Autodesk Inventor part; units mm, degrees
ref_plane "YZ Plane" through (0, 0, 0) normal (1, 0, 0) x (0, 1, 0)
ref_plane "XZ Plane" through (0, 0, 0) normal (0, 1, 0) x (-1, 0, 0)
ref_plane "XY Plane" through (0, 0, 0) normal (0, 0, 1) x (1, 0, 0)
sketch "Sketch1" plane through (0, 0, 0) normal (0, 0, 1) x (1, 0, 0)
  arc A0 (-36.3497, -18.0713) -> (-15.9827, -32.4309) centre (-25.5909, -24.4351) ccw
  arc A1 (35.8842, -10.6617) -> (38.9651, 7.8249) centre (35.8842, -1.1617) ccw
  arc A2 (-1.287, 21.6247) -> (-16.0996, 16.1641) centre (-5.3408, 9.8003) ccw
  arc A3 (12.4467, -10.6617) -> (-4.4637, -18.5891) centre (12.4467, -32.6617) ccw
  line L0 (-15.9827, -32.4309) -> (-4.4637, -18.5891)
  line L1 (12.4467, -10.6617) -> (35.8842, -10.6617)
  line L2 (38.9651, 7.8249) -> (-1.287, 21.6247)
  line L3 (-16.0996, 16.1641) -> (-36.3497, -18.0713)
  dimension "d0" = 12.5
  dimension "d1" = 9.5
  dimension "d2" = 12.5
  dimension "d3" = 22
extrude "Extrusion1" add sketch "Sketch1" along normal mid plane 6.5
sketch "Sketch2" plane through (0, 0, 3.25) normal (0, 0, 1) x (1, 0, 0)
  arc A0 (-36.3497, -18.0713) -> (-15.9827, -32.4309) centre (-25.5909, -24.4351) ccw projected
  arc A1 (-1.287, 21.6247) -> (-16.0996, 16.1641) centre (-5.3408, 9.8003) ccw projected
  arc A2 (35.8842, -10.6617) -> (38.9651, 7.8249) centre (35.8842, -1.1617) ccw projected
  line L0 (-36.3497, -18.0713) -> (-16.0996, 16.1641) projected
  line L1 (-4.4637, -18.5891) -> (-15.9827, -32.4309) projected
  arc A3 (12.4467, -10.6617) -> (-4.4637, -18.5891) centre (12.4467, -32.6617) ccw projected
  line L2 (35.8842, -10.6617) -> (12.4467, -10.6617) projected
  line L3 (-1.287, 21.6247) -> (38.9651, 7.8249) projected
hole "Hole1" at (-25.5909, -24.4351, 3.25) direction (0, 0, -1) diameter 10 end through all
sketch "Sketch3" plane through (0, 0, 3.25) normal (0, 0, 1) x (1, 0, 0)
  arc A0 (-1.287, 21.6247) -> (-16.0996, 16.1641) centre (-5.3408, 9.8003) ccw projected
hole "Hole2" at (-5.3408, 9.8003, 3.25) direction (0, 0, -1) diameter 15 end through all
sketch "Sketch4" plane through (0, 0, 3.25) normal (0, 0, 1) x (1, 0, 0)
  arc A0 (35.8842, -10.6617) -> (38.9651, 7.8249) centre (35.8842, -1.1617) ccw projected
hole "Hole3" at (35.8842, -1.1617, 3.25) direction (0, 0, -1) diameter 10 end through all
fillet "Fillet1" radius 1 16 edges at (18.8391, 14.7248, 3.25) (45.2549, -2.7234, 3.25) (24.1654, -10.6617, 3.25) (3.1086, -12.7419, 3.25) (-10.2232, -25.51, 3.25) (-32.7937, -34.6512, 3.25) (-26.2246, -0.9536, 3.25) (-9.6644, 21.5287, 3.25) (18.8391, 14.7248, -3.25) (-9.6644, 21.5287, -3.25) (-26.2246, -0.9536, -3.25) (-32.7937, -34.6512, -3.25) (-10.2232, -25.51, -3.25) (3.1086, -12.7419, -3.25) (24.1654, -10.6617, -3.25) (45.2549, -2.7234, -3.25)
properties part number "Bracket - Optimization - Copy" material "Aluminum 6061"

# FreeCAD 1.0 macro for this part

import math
import FreeCAD as App
import Part
import Sketcher
from FreeCAD import Vector
Q = App.Units.Quantity


def edges_at(feature, points):
    """Names of the edges that pass closest to the given points."""
    edges = feature.Shape.Edges
    near = lambda p: min(range(len(edges)), key=lambda i: edges[i].distToShape(Part.Vertex(*p))[0])
    return sorted({f"Edge{near(p) + 1}" for p in points})

doc = App.newDocument("Part")
body = doc.addObject("PartDesign::Body", "Body")

# Sketch on XY plane
sketch1 = body.newObject("Sketcher::SketchObject", "Sketch")
sketch1.AttachmentSupport = (doc.getObject("XY_Plane"), [""])
sketch1.MapMode = "FlatFace"
sketch1.addGeometry([
    Part.LineSegment(Vector(-16.0996, 16.1641, 0), Vector(-36.3497, -18.0713, 0)),  # 0
    Part.ArcOfCircle(Part.Circle(Vector(-25.5909, -24.4351, 0), Vector(0, 0, 1), 12.499989), math.radians(149.395804), math.radians(320.23328)),  # 1
    Part.LineSegment(Vector(-15.9827, -32.4309, 0), Vector(-4.4637, -18.5891, 0)),  # 2
    Part.ArcOfCircle(Part.Circle(Vector(12.4467, -32.6617, 0), Vector(0, 0, 1), 22), math.radians(90), math.radians(140.233243)),  # 3
    Part.LineSegment(Vector(12.4467, -10.6617, 0), Vector(35.8842, -10.6617, 0)),  # 4
    Part.ArcOfCircle(Part.Circle(Vector(35.8842, -1.1617, 0), Vector(0, 0, 1), 9.5), math.radians(-90), math.radians(71.076611)),  # 5
    Part.LineSegment(Vector(38.9651, 7.8249, 0), Vector(-1.287, 21.6247, 0)),  # 6
    Part.ArcOfCircle(Part.Circle(Vector(-5.3408, 9.8003, 0), Vector(0, 0, 1), 12.499989), math.radians(71.07657), math.radians(149.395804)),  # 7
], False)
sketch1.addConstraint([
    Sketcher.Constraint("Tangent", 0, 2, 1, 1),
    Sketcher.Constraint("Tangent", 1, 2, 2, 1),
    Sketcher.Constraint("Tangent", 2, 2, 3, 2),
    Sketcher.Constraint("Tangent", 3, 1, 4, 1),
    Sketcher.Constraint("Tangent", 4, 2, 5, 1),
    Sketcher.Constraint("Tangent", 5, 2, 6, 1),
    Sketcher.Constraint("Tangent", 6, 2, 7, 1),
    Sketcher.Constraint("Tangent", 7, 2, 0, 1),
    Sketcher.Constraint("Horizontal", 4),
    Sketcher.Constraint("Equal", 1, 7),
    Sketcher.Constraint("Radius", 3, Q("22 mm")),
    Sketcher.Constraint("Radius", 1, Q("12.5 mm")),
    Sketcher.Constraint("Radius", 5, Q("9.5 mm")),
    Sketcher.Constraint("DistanceX", 1, 3, 7, 3, Q("20.25 mm")),
    Sketcher.Constraint("Distance", 0, Q("39.776 mm")),
    Sketcher.Constraint("Distance", 6, Q("42.552 mm")),
    Sketcher.Constraint("DistanceX", 4, 1, 4, 2, Q("23.4375 mm")),
    Sketcher.Constraint("DistanceX", 1, 3, -1, 1, Q("25.591 mm")),
    Sketcher.Constraint("DistanceY", 1, 3, -1, 1, Q("24.435 mm")),
    Sketcher.Constraint("DistanceY", 1, 2, -1, 1, Q("32.431 mm")),
])
pad1 = body.newObject("PartDesign::Pad", "Pad")
pad1.Profile = sketch1
pad1.Length = 6.5
pad1.Midplane = True

# Sketch on XY plane
sketch2 = body.newObject("Sketcher::SketchObject", "Sketch001")
sketch2.AttachmentSupport = (doc.getObject("XY_Plane"), [""])
sketch2.MapMode = "FlatFace"
sketch2.AttachmentOffset = App.Placement(Vector(0, 0, 3.25), App.Rotation())
sketch2.addGeometry(Part.Circle(Vector(-25.5909, -24.4351, 0), Vector(0, 0, 1), 5), False)
sketch2.addConstraint([
    Sketcher.Constraint("Diameter", 0, Q("10 mm")),
    Sketcher.Constraint("DistanceX", 0, 3, -1, 1, Q("25.591 mm")),
    Sketcher.Constraint("DistanceY", 0, 3, -1, 1, Q("24.435 mm")),
])
doc.recompute()
hole = body.newObject("PartDesign::Hole", "Hole")
hole.Profile = sketch2
hole.ThreadType = "None"
hole.Diameter = 10
hole.DepthType = "ThroughAll"

# Sketch on XY plane
sketch3 = body.newObject("Sketcher::SketchObject", "Sketch002")
sketch3.AttachmentSupport = (doc.getObject("XY_Plane"), [""])
sketch3.MapMode = "FlatFace"
sketch3.AttachmentOffset = App.Placement(Vector(0, 0, 3.25), App.Rotation())
sketch3.addGeometry(Part.Circle(Vector(-5.3408, 9.8003, 0), Vector(0, 0, 1), 7.5), False)
sketch3.addConstraint([
    Sketcher.Constraint("Diameter", 0, Q("15 mm")),
    Sketcher.Constraint("DistanceX", 0, 3, -1, 1, Q("5.3408 mm")),
    Sketcher.Constraint("DistanceY", -1, 1, 0, 3, Q("9.8003 mm")),
])
doc.recompute()
hole2 = body.newObject("PartDesign::Hole", "Hole001")
hole2.Profile = sketch3
hole2.ThreadType = "None"
hole2.Diameter = 15
hole2.DepthType = "ThroughAll"

# Sketch on XY plane
sketch4 = body.newObject("Sketcher::SketchObject", "Sketch003")
sketch4.AttachmentSupport = (doc.getObject("XY_Plane"), [""])
sketch4.MapMode = "FlatFace"
sketch4.AttachmentOffset = App.Placement(Vector(0, 0, 3.25), App.Rotation())
sketch4.addGeometry(Part.Circle(Vector(35.8842, -1.1617, 0), Vector(0, 0, 1), 5), False)
sketch4.addConstraint([
    Sketcher.Constraint("Diameter", 0, Q("10 mm")),
    Sketcher.Constraint("DistanceX", -1, 1, 0, 3, Q("35.8842 mm")),
    Sketcher.Constraint("DistanceY", 0, 3, -1, 1, Q("1.1617 mm")),
])
doc.recompute()
hole3 = body.newObject("PartDesign::Hole", "Hole002")
hole3.Profile = sketch4
hole3.ThreadType = "None"
hole3.Diameter = 10
hole3.DepthType = "ThroughAll"
doc.recompute()

fillet = body.newObject("PartDesign::Fillet", "Fillet")
fillet.Base = (hole3, edges_at(hole3, [
    (18.839, 14.725, 3.25),
    (45.255, -2.723, 3.25),
    (24.165, -10.662, 3.25),
    (3.109, -12.742, 3.25),
    (-10.223, -25.51, 3.25),
    (-32.794, -34.651, 3.25),
    (-26.225, -0.954, 3.25),
    (-9.664, 21.529, 3.25),
    (18.839, 14.725, -3.25),
    (-9.664, 21.529, -3.25),
    (-26.225, -0.954, -3.25),
    (-32.794, -34.651, -3.25),
    (-10.223, -25.51, -3.25),
    (3.109, -12.742, -3.25),
    (24.165, -10.662, -3.25),
    (45.255, -2.723, -3.25),
]))
fillet.Radius = 1

doc.recompute()
